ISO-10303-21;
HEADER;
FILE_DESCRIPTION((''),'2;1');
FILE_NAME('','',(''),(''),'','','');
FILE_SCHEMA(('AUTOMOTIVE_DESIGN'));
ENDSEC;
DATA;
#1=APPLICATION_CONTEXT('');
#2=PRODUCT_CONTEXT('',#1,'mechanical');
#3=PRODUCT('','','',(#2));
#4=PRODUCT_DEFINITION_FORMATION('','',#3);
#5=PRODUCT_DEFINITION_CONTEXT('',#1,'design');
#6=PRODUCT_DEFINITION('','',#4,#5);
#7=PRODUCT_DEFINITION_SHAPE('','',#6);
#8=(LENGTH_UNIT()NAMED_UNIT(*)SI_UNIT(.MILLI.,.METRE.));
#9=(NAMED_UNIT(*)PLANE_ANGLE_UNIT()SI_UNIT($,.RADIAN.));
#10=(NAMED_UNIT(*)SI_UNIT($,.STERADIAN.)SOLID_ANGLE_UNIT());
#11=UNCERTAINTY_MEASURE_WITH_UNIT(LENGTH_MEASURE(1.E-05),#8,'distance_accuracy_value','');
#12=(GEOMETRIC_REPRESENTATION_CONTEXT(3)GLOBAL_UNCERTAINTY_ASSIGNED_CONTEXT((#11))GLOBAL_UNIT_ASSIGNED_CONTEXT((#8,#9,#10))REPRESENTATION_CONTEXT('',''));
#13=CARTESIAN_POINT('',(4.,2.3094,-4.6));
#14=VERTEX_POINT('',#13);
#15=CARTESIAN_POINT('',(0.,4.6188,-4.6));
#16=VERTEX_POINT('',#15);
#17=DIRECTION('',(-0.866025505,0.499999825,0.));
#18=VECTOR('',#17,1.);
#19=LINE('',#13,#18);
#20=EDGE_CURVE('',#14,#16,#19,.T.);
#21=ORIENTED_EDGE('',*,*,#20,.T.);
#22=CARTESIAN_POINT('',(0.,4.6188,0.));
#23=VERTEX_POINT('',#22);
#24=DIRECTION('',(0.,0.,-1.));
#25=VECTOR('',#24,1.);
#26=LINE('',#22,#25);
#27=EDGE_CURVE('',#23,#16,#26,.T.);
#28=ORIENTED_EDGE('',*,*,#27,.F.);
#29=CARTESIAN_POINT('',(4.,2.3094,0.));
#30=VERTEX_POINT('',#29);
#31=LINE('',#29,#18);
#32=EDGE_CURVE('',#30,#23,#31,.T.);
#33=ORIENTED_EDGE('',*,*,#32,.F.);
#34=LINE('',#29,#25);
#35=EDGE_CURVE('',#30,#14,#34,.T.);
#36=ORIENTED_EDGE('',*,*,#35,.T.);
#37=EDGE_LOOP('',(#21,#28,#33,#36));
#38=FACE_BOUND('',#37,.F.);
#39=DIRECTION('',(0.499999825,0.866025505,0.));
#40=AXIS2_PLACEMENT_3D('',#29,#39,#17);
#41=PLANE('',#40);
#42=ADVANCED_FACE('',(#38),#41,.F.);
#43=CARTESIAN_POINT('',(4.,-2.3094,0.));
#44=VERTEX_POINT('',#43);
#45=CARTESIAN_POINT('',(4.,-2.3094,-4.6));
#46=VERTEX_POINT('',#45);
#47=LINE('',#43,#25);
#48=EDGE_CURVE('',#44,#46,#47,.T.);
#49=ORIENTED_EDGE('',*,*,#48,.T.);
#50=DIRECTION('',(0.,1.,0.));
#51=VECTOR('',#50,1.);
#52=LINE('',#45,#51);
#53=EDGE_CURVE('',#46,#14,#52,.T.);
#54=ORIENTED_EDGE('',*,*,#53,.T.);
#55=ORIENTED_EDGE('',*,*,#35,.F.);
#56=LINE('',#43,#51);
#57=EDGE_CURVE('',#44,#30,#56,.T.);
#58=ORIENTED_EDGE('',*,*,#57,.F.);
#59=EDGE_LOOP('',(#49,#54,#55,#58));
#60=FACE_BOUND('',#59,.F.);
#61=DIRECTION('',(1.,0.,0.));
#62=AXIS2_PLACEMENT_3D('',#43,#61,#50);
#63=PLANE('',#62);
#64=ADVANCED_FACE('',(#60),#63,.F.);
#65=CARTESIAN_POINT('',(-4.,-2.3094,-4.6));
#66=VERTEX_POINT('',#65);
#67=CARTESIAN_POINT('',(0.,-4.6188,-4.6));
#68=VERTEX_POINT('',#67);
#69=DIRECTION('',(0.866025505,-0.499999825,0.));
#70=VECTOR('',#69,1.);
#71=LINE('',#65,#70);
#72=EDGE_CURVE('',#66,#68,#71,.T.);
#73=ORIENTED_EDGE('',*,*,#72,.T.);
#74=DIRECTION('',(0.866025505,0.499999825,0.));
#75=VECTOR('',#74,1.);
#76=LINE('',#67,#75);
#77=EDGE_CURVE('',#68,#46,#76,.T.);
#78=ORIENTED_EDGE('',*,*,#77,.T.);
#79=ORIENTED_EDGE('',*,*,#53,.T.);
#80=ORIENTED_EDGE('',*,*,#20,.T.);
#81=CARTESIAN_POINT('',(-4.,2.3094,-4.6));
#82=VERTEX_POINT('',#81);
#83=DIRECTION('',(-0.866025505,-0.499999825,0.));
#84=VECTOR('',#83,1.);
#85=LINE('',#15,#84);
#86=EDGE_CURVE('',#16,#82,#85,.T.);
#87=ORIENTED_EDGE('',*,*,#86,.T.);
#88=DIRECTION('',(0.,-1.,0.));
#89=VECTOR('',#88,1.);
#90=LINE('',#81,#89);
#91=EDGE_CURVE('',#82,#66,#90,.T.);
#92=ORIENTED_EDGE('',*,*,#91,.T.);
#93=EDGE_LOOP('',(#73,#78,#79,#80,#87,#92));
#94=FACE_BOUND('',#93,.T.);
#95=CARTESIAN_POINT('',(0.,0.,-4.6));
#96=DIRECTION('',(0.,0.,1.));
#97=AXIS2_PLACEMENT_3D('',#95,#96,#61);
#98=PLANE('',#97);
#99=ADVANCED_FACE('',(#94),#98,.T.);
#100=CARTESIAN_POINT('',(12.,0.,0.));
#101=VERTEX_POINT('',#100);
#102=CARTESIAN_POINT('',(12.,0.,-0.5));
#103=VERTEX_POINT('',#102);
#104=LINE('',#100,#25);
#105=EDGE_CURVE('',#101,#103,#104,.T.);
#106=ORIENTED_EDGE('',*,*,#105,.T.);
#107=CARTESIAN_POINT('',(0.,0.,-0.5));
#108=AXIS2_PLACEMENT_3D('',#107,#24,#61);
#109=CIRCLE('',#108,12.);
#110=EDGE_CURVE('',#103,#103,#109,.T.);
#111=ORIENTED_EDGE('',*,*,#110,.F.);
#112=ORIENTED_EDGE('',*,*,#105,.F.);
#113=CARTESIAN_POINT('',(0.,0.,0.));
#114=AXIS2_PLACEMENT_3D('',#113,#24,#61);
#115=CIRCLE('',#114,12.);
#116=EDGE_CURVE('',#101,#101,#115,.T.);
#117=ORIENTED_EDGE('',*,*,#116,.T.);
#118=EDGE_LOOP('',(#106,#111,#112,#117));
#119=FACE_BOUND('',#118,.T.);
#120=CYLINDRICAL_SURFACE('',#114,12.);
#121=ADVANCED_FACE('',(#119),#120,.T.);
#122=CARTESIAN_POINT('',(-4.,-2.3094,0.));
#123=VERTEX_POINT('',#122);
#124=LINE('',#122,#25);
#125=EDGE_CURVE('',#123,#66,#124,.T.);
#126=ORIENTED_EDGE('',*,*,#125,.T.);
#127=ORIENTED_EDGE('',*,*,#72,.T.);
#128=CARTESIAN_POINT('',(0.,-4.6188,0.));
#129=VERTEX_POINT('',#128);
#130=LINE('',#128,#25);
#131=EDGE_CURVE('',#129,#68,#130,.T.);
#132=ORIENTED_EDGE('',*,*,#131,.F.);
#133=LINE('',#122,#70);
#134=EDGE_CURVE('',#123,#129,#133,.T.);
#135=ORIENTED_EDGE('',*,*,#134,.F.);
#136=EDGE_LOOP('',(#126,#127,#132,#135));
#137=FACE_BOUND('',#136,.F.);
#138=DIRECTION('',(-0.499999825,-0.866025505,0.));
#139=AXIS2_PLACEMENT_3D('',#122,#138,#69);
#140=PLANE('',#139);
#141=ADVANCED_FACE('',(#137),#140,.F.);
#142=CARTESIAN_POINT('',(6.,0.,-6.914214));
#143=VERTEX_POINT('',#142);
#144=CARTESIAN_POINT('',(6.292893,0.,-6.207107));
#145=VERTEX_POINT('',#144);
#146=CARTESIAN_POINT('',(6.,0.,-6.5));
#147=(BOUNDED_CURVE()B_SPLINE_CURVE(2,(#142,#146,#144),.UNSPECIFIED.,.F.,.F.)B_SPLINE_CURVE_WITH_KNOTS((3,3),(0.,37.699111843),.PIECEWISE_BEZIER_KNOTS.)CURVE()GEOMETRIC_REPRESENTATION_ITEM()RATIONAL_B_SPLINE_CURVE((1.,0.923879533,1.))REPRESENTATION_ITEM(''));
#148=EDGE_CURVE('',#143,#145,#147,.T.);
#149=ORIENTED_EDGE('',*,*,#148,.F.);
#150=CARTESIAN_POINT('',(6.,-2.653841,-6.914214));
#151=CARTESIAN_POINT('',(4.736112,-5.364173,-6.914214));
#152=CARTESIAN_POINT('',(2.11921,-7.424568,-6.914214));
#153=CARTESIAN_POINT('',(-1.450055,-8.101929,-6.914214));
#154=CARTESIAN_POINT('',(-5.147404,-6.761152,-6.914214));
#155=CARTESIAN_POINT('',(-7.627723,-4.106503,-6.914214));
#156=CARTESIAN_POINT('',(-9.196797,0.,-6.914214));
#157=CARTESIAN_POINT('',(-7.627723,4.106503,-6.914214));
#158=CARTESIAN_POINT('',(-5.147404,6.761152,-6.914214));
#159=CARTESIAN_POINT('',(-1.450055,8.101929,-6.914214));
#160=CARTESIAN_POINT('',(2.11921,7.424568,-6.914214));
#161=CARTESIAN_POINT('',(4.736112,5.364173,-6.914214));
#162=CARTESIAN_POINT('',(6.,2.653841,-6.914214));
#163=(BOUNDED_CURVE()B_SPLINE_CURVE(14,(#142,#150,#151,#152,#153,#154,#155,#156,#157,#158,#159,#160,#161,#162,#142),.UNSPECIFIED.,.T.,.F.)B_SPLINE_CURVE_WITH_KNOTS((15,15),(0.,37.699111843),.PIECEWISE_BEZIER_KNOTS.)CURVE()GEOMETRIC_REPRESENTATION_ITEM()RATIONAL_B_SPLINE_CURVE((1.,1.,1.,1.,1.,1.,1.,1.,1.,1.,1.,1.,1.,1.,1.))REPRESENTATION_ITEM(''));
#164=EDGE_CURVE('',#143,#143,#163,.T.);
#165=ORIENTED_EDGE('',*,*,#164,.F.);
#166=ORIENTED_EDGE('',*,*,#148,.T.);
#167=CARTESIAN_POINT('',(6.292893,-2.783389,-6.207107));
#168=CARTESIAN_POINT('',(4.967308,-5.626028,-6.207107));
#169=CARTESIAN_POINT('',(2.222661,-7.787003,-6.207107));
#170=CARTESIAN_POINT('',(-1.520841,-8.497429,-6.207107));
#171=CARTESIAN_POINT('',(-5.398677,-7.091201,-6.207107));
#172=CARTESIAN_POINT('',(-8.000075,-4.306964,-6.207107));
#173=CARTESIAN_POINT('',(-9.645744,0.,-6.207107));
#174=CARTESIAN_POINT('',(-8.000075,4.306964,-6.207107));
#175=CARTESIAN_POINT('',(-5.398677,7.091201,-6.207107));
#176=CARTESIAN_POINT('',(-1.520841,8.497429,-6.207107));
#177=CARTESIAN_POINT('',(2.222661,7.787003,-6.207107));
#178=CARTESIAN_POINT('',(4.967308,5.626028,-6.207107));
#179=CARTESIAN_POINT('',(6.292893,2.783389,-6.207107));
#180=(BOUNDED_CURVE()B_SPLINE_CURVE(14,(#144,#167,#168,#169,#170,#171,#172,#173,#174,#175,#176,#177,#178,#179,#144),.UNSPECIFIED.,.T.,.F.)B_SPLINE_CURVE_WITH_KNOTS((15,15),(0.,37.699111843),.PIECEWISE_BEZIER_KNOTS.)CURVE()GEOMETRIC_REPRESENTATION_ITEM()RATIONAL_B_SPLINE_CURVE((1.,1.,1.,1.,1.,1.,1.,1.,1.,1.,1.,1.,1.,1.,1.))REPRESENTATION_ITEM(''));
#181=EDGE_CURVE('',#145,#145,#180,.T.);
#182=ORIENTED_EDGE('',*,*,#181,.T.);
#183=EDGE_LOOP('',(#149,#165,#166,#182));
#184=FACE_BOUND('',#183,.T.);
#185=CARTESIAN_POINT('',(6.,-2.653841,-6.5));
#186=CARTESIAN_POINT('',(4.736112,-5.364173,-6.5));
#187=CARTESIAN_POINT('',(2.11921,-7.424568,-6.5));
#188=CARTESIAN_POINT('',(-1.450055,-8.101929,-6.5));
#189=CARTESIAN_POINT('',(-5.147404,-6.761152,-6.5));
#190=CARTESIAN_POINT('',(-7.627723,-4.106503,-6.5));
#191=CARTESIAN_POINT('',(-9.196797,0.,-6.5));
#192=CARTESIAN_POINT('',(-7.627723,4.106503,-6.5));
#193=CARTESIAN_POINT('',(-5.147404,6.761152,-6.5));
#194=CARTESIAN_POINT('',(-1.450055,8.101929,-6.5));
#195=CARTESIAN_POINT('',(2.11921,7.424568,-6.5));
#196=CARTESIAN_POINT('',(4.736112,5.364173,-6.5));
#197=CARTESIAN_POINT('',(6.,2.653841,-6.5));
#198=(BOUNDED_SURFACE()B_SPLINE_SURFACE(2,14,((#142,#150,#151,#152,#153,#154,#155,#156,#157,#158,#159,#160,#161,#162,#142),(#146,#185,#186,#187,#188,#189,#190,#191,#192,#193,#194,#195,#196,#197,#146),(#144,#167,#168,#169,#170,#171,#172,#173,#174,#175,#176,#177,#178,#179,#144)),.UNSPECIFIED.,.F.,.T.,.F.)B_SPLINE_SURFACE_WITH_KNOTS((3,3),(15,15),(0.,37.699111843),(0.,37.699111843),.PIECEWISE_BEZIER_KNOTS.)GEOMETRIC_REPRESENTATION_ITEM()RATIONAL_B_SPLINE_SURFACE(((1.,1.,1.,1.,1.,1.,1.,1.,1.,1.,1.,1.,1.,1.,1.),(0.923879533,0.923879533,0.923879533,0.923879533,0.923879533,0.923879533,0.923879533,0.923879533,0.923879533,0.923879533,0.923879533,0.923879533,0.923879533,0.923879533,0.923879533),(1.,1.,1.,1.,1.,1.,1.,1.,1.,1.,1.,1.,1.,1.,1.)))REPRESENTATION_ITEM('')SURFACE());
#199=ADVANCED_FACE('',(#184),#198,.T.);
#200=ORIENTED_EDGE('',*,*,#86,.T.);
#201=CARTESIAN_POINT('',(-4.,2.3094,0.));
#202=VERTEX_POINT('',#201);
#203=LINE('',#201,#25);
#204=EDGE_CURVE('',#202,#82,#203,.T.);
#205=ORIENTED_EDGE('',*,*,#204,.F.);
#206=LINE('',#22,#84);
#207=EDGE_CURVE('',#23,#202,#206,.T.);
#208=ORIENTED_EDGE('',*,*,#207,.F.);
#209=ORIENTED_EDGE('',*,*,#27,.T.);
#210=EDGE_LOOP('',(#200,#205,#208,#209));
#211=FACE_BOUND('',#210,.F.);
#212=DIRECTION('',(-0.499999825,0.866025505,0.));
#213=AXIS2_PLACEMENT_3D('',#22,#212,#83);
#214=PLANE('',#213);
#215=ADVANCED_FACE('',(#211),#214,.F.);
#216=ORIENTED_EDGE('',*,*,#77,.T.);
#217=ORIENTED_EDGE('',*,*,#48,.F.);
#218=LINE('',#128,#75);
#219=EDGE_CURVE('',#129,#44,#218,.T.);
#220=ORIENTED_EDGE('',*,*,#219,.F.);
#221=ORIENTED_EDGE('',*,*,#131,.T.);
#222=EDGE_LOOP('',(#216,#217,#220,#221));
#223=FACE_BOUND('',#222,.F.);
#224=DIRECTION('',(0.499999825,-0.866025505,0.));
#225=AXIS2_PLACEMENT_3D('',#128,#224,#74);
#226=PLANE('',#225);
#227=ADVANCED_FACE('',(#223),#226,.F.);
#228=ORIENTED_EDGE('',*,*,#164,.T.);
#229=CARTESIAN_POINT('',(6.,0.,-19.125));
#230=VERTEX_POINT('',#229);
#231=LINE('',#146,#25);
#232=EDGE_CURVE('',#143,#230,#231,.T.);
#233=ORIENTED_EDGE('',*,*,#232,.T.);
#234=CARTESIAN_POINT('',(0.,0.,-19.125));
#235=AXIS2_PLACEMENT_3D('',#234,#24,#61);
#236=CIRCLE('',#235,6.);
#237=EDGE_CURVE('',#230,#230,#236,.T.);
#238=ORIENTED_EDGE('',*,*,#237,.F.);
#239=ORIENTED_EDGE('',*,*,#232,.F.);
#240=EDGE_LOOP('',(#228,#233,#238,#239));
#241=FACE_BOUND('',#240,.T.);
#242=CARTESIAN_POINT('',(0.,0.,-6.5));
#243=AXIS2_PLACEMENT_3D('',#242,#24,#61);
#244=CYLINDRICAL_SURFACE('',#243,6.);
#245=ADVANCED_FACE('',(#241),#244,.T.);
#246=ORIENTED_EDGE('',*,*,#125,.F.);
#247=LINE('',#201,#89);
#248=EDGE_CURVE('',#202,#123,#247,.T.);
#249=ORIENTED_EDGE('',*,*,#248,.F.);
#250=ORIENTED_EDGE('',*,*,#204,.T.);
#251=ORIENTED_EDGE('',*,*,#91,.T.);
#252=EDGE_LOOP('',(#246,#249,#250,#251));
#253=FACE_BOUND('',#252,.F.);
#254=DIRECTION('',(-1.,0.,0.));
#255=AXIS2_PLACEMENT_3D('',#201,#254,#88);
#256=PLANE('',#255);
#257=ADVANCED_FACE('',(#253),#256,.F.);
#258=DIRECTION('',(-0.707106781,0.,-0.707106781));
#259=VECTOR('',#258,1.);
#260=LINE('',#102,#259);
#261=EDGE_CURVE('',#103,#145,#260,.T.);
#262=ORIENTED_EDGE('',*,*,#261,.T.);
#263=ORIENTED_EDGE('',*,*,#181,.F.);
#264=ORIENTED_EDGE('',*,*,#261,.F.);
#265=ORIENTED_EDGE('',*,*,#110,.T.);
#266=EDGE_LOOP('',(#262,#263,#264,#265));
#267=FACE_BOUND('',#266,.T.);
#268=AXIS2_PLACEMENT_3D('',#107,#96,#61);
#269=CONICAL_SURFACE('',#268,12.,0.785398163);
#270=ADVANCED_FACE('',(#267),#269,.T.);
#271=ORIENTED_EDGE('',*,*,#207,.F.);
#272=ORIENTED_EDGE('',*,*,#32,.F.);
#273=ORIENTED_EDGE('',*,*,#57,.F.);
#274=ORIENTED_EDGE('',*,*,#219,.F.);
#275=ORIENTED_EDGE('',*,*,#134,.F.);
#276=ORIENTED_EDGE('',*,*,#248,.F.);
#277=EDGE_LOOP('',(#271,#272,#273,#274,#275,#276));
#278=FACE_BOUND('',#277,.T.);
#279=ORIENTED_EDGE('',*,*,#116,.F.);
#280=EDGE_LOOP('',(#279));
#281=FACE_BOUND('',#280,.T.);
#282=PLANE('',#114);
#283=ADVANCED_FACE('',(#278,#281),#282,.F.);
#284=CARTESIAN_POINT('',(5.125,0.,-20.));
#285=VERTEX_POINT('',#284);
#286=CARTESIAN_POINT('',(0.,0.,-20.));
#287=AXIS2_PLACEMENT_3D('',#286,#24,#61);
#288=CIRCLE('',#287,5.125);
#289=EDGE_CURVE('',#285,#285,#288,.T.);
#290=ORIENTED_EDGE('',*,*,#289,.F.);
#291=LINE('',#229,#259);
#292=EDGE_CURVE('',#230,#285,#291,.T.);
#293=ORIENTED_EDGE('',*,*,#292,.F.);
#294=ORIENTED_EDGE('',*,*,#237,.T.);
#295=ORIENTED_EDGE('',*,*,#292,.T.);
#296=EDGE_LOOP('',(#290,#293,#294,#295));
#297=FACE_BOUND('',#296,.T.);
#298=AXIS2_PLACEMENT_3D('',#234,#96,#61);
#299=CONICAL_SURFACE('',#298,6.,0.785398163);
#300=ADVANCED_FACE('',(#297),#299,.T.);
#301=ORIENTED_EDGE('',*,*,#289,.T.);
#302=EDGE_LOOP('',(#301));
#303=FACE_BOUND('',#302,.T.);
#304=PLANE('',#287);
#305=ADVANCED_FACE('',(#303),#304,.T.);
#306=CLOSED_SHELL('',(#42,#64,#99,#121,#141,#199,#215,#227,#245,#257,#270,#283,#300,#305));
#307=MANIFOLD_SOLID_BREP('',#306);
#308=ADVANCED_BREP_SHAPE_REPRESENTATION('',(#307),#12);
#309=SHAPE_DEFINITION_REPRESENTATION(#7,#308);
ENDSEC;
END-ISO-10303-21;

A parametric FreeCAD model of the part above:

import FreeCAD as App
import Part
import Sketcher

V = App.Vector
Q = App.Units.Quantity


def edges_at(feature, points):
    """Names of the edges that pass closest to the given points."""
    edges = feature.Shape.Edges
    near = lambda p: min(range(len(edges)), key=lambda i: edges[i].distToShape(Part.Vertex(*p))[0])
    return sorted({f"Edge{near(p) + 1}" for p in points})


def add_polygon(sketch, points):
    """Adds a closed chain of lines whose ends are joined by coincident constraints."""
    first, n = sketch.GeometryCount, len(points)
    for a, b in zip(points, points[1:] + points[:1]):
        sketch.addGeometry(Part.LineSegment(App.Vector(*a, 0), App.Vector(*b, 0)), False)
    for i in range(n):
        sketch.addConstraint(Sketcher.Constraint("Coincident", first + i, 2, first + (i + 1) % n, 1))

doc = App.newDocument("Part")
body = doc.addObject("PartDesign::Body", "Body")

# Sketch on XZ plane
sketch1 = body.newObject("Sketcher::SketchObject", "Sketch")
sketch1.AttachmentSupport = (doc.getObject("XZ_Plane"), [""])
sketch1.MapMode = "FlatFace"
add_polygon(sketch1, [(6, -6.5), (6, -20), (0, -20), (0, 0), (12, 0), (12, -0.5)])  # lines 0-5
sketch1.addConstraint(Sketcher.Constraint("Vertical", 0))
sketch1.addConstraint(Sketcher.Constraint("Horizontal", 1))
sketch1.addConstraint(Sketcher.Constraint("Vertical", 2))
sketch1.addConstraint(Sketcher.Constraint("Horizontal", 3))
sketch1.addConstraint(Sketcher.Constraint("Vertical", 4))
sketch1.addConstraint(Sketcher.Constraint("Coincident", 2, 2, -1, 1))
sketch1.addConstraint(Sketcher.Constraint("DistanceX", 1, 2, 1, 1, 6.0))
sketch1.addConstraint(Sketcher.Constraint("DistanceX", 3, 1, 3, 2, 12.0))
sketch1.addConstraint(Sketcher.Constraint("DistanceY", 2, 1, 2, 2, 20.0))
sketch1.addConstraint(Sketcher.Constraint("DistanceY", 4, 2, 4, 1, 0.5))
sketch1.addConstraint(Sketcher.Constraint("DistanceY", 5, 2, 4, 2, 6.0))
revolution = body.newObject("PartDesign::Revolution", "Revolution")
revolution.Profile = sketch1
revolution.ReferenceAxis = (sketch1, ["V_Axis"])
revolution.Angle = 360

# Sketch on XY plane
sketch2 = body.newObject("Sketcher::SketchObject", "Sketch001")
sketch2.AttachmentSupport = (doc.getObject("XY_Plane"), [""])
sketch2.MapMode = "FlatFace"
add_polygon(sketch2, [(0, 4.6), (-4, 2.3), (-4, -2.3), (0, -4.6), (4, -2.3), (4, 2.3)])  # lines 0-5
sketch2.addConstraint(Sketcher.Constraint("Vertical", 1))
sketch2.addConstraint(Sketcher.Constraint("Vertical", 4))
sketch2.addConstraint(Sketcher.Constraint("Symmetric", 0, 2, 3, 2, -1, 1))
sketch2.addConstraint(Sketcher.Constraint("Symmetric", 2, 2, 5, 2, -1, 1))
sketch2.addConstraint(Sketcher.Constraint("PointOnObject", 2, 2, -2))
sketch2.addConstraint(Sketcher.Constraint("Parallel", 2, 5))
sketch2.addConstraint(Sketcher.Constraint("Horizontal", 1, 2, 3, 2))
sketch2.addConstraint(Sketcher.Constraint("DistanceX", 1, 2, 3, 2, 8.0))
sketch2.addConstraint(Sketcher.Constraint("Angle", 0, Q("-150 deg")))
sketch2.addConstraint(Sketcher.Constraint("DistanceY", 1, 2, 1, 1, 4.6188))
pocket1 = body.newObject("PartDesign::Pocket", "Pocket")
pocket1.Profile = sketch2
pocket1.Length = 4.6
doc.recompute()

fillet = body.newObject("PartDesign::Fillet", "Fillet")
fillet.Base = (pocket1, edges_at(pocket1, [(-6, 0, -6.5)]))
fillet.Radius = 1
doc.recompute()

chamfer = body.newObject("PartDesign::Chamfer", "Chamfer")
chamfer.Base = (fillet, edges_at(fillet, [(-6, 0, -20)]))
chamfer.Size = 0.875

doc.recompute()
